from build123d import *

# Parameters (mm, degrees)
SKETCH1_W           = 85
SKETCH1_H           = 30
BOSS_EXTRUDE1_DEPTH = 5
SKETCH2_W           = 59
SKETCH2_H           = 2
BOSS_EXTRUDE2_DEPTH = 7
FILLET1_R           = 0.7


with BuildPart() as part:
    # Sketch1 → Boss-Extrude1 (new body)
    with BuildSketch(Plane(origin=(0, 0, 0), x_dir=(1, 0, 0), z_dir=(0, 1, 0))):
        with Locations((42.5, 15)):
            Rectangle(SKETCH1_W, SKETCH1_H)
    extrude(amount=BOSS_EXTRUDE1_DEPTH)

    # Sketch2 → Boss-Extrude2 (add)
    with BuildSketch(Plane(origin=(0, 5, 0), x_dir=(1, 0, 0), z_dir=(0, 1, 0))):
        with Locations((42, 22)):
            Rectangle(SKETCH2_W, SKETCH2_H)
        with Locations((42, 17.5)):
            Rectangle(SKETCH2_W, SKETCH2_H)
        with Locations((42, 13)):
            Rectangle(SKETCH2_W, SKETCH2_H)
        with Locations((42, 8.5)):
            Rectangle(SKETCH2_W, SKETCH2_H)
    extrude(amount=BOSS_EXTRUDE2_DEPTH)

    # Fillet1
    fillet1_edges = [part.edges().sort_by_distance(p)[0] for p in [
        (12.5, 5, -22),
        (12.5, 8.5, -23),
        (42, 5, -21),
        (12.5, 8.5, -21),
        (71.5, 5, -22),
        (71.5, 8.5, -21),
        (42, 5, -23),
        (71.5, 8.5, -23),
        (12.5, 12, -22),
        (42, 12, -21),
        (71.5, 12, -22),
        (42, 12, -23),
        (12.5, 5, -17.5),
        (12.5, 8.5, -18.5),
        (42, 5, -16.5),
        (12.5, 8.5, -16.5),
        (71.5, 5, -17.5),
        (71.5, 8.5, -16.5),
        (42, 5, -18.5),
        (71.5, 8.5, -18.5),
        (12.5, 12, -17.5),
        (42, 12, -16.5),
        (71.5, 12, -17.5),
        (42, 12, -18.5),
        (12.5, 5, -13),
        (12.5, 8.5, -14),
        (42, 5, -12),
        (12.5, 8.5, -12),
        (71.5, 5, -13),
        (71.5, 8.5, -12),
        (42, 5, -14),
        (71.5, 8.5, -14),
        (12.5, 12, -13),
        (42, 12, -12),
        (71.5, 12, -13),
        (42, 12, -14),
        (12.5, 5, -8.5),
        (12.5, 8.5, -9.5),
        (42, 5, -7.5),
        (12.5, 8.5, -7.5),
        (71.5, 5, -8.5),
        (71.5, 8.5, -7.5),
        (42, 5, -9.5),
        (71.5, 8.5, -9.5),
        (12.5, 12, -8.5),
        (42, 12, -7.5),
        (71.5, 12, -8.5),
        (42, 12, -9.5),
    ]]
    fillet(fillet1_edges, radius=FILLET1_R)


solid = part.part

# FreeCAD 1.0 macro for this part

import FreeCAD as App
import Part
import Sketcher


def edges_at(feature, points):
    """Names of the edges that pass closest to the given points."""
    edges = feature.Shape.Edges
    near = lambda p: min(range(len(edges)), key=lambda i: edges[i].distToShape(Part.Vertex(*p))[0])
    return sorted({f"Edge{near(p) + 1}" for p in points})


def add_polygon(sketch, points):
    """Adds a closed chain of lines whose ends are joined by coincident constraints."""
    first, n = sketch.GeometryCount, len(points)
    for a, b in zip(points, points[1:] + points[:1]):
        sketch.addGeometry(Part.LineSegment(App.Vector(*a, 0), App.Vector(*b, 0)), False)
    for i in range(n):
        sketch.addConstraint(Sketcher.Constraint("Coincident", first + i, 2, first + (i + 1) % n, 1))

doc = App.newDocument("Part")
body = doc.addObject("PartDesign::Body", "Body")

sketch1 = body.newObject("Sketcher::SketchObject", "Sketch")
sketch1.AttachmentSupport = (doc.getObject("XZ_Plane"), [""])
sketch1.MapMode = "FlatFace"
add_polygon(sketch1, [(0, -30), (0, 0), (85, 0), (85, -30)])
sketch1.addConstraint(Sketcher.Constraint("Vertical", 0))
sketch1.addConstraint(Sketcher.Constraint("Horizontal", 1))
sketch1.addConstraint(Sketcher.Constraint("Vertical", 2))
sketch1.addConstraint(Sketcher.Constraint("Horizontal", 3))
sketch1.addConstraint(Sketcher.Constraint("Coincident", 0, 2, -1, 1))
sketch1.addConstraint(Sketcher.Constraint("DistanceX", 1, 1, 1, 2, 85.0))
sketch1.addConstraint(Sketcher.Constraint("DistanceY", 0, 1, 0, 2, 30.0))
pad1 = body.newObject("PartDesign::Pad", "Pad")
pad1.Profile = sketch1
pad1.Length = 5
pad1.Reversed = True

sketch2 = body.newObject("Sketcher::SketchObject", "Sketch001")
sketch2.AttachmentSupport = (doc.getObject("XZ_Plane"), [""])
sketch2.MapMode = "FlatFace"
sketch2.AttachmentOffset = App.Placement(App.Vector(0, 0, -5), App.Rotation())
add_polygon(sketch2, [(12.5, -23), (12.5, -21), (71.5, -21), (71.5, -23)])
add_polygon(sketch2, [(12.5, -18.5), (12.5, -16.5), (71.5, -16.5), (71.5, -18.5)])
add_polygon(sketch2, [(12.5, -14), (12.5, -12), (71.5, -12), (71.5, -14)])
add_polygon(sketch2, [(12.5, -9.5), (12.5, -7.5), (71.5, -7.5), (71.5, -9.5)])
sketch2.addConstraint(Sketcher.Constraint("Vertical", 0))
sketch2.addConstraint(Sketcher.Constraint("Horizontal", 1))
sketch2.addConstraint(Sketcher.Constraint("Vertical", 2))
sketch2.addConstraint(Sketcher.Constraint("Horizontal", 3))
sketch2.addConstraint(Sketcher.Constraint("Vertical", 4))
sketch2.addConstraint(Sketcher.Constraint("Horizontal", 5))
sketch2.addConstraint(Sketcher.Constraint("Vertical", 6))
sketch2.addConstraint(Sketcher.Constraint("Horizontal", 7))
sketch2.addConstraint(Sketcher.Constraint("Vertical", 8))
sketch2.addConstraint(Sketcher.Constraint("Horizontal", 9))
sketch2.addConstraint(Sketcher.Constraint("Vertical", 10))
sketch2.addConstraint(Sketcher.Constraint("Horizontal", 11))
sketch2.addConstraint(Sketcher.Constraint("Vertical", 12))
sketch2.addConstraint(Sketcher.Constraint("Horizontal", 13))
sketch2.addConstraint(Sketcher.Constraint("Vertical", 14))
sketch2.addConstraint(Sketcher.Constraint("Horizontal", 15))
sketch2.addConstraint(Sketcher.Constraint("Vertical", 3, 2, 4, 2))
sketch2.addConstraint(Sketcher.Constraint("Vertical", 2, 2, 5, 2))
sketch2.addConstraint(Sketcher.Constraint("Vertical", 7, 2, 8, 2))
sketch2.addConstraint(Sketcher.Constraint("Vertical", 6, 2, 9, 2))
sketch2.addConstraint(Sketcher.Constraint("Vertical", 11, 2, 12, 2))
sketch2.addConstraint(Sketcher.Constraint("Vertical", 10, 2, 13, 2))
sketch2.addConstraint(Sketcher.Constraint("Equal", 2, 4))
sketch2.addConstraint(Sketcher.Constraint("Equal", 6, 8))
sketch2.addConstraint(Sketcher.Constraint("Equal", 10, 12))
sketch2.addConstraint(Sketcher.Constraint("DistanceX", 1, 1, 1, 2, 59.0))
sketch2.addConstraint(Sketcher.Constraint("DistanceY", 0, 1, 0, 2, 2.0))
sketch2.addConstraint(Sketcher.Constraint("DistanceY", 0, 2, -1, 1, 21.0))
sketch2.addConstraint(Sketcher.Constraint("DistanceY", 8, 2, -1, 1, 12.0))
sketch2.addConstraint(Sketcher.Constraint("DistanceY", 4, 2, 12, 2, 9.0))
sketch2.addConstraint(Sketcher.Constraint("DistanceX", -1, 1, 0, 2, 12.5))
sketch2.addConstraint(Sketcher.Constraint("DistanceY", 4, 2, -1, 1, 16.5))
pad2 = body.newObject("PartDesign::Pad", "Pad001")
pad2.Profile = sketch2
pad2.Length = 7
pad2.Reversed = True
doc.recompute()

fillet = body.newObject("PartDesign::Fillet", "Fillet")
fillet.Base = (pad2, edges_at(pad2, [
    (12.5, 5, -22),
    (12.5, 8.5, -23),
    (42, 5, -21),
    (12.5, 8.5, -21),
    (71.5, 5, -22),
    (71.5, 8.5, -21),
    (42, 5, -23),
    (71.5, 8.5, -23),
    (12.5, 12, -22),
    (42, 12, -21),
    (71.5, 12, -22),
    (42, 12, -23),
    (12.5, 5, -17.5),
    (12.5, 8.5, -18.5),
    (42, 5, -16.5),
    (12.5, 8.5, -16.5),
    (71.5, 5, -17.5),
    (71.5, 8.5, -16.5),
    (42, 5, -18.5),
    (71.5, 8.5, -18.5),
    (12.5, 12, -17.5),
    (42, 12, -16.5),
    (71.5, 12, -17.5),
    (42, 12, -18.5),
    (12.5, 5, -13),
    (12.5, 8.5, -14),
    (42, 5, -12),
    (12.5, 8.5, -12),
    (71.5, 5, -13),
    (71.5, 8.5, -12),
    (42, 5, -14),
    (71.5, 8.5, -14),
    (12.5, 12, -13),
    (42, 12, -12),
    (71.5, 12, -13),
    (42, 12, -14),
    (12.5, 5, -8.5),
    (12.5, 8.5, -9.5),
    (42, 5, -7.5),
    (12.5, 8.5, -7.5),
    (71.5, 5, -8.5),
    (71.5, 8.5, -7.5),
    (42, 5, -9.5),
    (71.5, 8.5, -9.5),
    (12.5, 12, -8.5),
    (42, 12, -7.5),
    (71.5, 12, -8.5),
    (42, 12, -9.5),
]))
fillet.Radius = 0.7

doc.recompute()
